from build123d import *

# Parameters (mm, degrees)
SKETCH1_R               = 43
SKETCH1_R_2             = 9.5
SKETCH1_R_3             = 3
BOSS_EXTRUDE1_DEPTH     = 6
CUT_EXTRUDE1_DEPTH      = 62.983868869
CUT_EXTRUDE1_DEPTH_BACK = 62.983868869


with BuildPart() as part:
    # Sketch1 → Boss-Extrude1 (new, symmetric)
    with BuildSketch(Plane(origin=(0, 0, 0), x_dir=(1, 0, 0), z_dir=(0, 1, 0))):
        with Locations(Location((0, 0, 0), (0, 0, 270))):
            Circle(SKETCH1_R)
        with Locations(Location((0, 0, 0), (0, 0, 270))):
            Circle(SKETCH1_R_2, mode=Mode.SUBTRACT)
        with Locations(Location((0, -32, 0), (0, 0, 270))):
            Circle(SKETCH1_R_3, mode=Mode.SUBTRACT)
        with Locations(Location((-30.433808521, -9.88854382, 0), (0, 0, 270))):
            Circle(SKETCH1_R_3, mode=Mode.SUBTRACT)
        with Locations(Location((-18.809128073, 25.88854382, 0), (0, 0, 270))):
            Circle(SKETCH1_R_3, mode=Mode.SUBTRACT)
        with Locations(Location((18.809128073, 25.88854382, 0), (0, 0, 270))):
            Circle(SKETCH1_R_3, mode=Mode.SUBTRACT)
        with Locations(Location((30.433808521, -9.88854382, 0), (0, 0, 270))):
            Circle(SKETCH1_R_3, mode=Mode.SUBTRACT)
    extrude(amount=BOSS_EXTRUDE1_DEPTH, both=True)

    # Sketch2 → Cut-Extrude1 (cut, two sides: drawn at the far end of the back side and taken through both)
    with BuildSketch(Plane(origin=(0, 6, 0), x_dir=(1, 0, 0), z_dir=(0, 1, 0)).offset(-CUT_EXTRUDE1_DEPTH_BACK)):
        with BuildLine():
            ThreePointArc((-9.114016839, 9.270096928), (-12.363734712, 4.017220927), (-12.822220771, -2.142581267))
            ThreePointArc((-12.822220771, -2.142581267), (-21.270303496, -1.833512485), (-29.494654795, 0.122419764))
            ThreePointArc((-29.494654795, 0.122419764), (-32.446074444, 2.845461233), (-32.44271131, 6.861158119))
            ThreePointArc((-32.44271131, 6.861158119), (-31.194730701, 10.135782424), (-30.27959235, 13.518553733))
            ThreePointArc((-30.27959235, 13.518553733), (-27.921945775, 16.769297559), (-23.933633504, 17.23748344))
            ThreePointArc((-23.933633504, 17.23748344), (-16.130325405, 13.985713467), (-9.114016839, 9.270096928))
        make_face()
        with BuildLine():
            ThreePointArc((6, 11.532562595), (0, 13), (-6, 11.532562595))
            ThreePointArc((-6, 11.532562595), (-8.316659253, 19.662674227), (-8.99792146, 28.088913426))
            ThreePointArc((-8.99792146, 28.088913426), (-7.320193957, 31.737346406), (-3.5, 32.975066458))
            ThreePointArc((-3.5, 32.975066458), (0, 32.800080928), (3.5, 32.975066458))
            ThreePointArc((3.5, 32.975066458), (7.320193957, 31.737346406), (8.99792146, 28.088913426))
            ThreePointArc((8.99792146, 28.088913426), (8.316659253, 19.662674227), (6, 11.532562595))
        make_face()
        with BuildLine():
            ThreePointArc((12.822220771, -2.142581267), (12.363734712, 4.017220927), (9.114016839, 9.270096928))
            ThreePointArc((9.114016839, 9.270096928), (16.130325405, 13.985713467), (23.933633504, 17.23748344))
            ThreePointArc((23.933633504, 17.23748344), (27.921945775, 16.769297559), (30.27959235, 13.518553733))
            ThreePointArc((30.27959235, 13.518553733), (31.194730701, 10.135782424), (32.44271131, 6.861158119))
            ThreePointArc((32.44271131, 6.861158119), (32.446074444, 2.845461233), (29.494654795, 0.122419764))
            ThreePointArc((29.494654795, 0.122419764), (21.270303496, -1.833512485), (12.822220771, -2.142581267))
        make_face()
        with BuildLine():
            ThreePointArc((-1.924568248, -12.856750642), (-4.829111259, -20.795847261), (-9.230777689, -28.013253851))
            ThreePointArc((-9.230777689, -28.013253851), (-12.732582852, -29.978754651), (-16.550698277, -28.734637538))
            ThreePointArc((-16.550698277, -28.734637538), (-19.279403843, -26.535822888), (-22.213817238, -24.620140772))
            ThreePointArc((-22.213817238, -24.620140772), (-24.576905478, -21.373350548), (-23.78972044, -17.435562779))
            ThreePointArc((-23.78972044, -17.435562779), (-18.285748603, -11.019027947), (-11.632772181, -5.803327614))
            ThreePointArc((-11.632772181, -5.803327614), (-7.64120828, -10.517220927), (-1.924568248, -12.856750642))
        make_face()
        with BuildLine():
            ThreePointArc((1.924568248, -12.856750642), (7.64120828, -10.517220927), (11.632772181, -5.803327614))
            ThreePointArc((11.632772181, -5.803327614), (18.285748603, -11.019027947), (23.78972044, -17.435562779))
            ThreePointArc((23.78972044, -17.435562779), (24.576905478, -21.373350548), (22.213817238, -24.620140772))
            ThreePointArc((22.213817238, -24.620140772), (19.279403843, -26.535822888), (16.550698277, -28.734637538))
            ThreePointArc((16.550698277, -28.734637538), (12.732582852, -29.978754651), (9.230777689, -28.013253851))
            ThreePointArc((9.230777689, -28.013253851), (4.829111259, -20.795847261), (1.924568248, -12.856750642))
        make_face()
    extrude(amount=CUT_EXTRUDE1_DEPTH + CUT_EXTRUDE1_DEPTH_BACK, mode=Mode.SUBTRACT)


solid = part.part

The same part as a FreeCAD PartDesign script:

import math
import FreeCAD as App
import Part
import Sketcher

doc = App.newDocument("Part")
body = doc.addObject("PartDesign::Body", "Body")

# Sketch on XZ plane
sketch1 = body.newObject("Sketcher::SketchObject", "Sketch")
sketch1.AttachmentSupport = (doc.getObject("XZ_Plane"), [""])
sketch1.MapMode = "FlatFace"
sketch1.addGeometry([
    Part.Circle(App.Vector(0, 0, 0), App.Vector(0, 0, 1), 43),  # 0
    Part.Circle(App.Vector(-18.809128, -25.888544, 0), App.Vector(0, 0, 1), 3),  # 1
    Part.Circle(App.Vector(-30.433809, 9.888544, 0), App.Vector(0, 0, 1), 3),  # 2
    Part.Circle(App.Vector(0, 0, 0), App.Vector(0, 0, 1), 9.5),  # 3
    Part.Circle(App.Vector(18.809128, -25.888544, 0), App.Vector(0, 0, 1), 3),  # 4
    Part.Circle(App.Vector(0, 32, 0), App.Vector(0, 0, 1), 3),  # 5
    Part.Circle(App.Vector(30.433809, 9.888544, 0), App.Vector(0, 0, 1), 3),  # 6
], False)
sketch1.addConstraint([
    Sketcher.Constraint("Coincident", 0, 3, -1, 1),
    Sketcher.Constraint("Coincident", 3, 3, -1, 1),
    Sketcher.Constraint("Equal", 1, 2),
    Sketcher.Constraint("Equal", 2, 4),
    Sketcher.Constraint("Equal", 4, 5),
    Sketcher.Constraint("Equal", 5, 6),
    Sketcher.Constraint("Symmetric", 1, 3, 4, 3, -2),
    Sketcher.Constraint("Symmetric", 2, 3, 6, 3, -2),
    Sketcher.Constraint("PointOnObject", 5, 3, -2),
    Sketcher.Constraint("Diameter", 0, 86.0),
    Sketcher.Constraint("Diameter", 1, 6.0),
    Sketcher.Constraint("Diameter", 3, 19.0),
    Sketcher.Constraint("DistanceY", -1, 1, 5, 3, 32.0),
    Sketcher.Constraint("DistanceX", 1, 3, -1, 1, 18.809128),
    Sketcher.Constraint("DistanceX", 2, 3, -1, 1, 30.433809),
    Sketcher.Constraint("DistanceY", 1, 3, -1, 1, 25.888544),
    Sketcher.Constraint("DistanceY", -1, 1, 2, 3, 9.888544),
])
pad1 = body.newObject("PartDesign::Pad", "Pad")
pad1.Profile = sketch1
pad1.Length = 12
pad1.Midplane = True

# Sketch on XZ plane
sketch2 = body.newObject("Sketcher::SketchObject", "Sketch001")
sketch2.AttachmentSupport = (doc.getObject("XZ_Plane"), [""])
sketch2.MapMode = "FlatFace"
sketch2.AttachmentOffset = App.Placement(App.Vector(0, 0, -6), App.Rotation())
sketch2.addGeometry([
    Part.ArcOfCircle(Part.Circle(App.Vector(0, 0, 0), App.Vector(0, 0, 1), 13), math.radians(170.513574), math.radians(225.486426)),  # 0
    Part.ArcOfCircle(Part.Circle(App.Vector(-36.492033, 23.887772, 0), App.Vector(0, 0, 1), 43), math.radians(-73.018927), math.radians(-50.453961)),  # 1
    Part.ArcOfCircle(Part.Circle(App.Vector(-25.393912, -12.455477, 0), App.Vector(0, 0, 1), 5), math.radians(-167.724338), math.radians(-73.018927)),  # 2
    Part.ArcOfCircle(Part.Circle(App.Vector(-64.567672, -20.979308, 0), App.Vector(0, 0, 1), 35.090387), math.radians(12.275662), math.radians(23.724338)),  # 3
    Part.ArcOfCircle(Part.Circle(App.Vector(-27.865252, -4.849475, 0), App.Vector(0, 0, 1), 5), math.radians(109.018927), math.radians(203.724338)),  # 4
    Part.ArcOfCircle(Part.Circle(App.Vector(-15.481795, -40.775092, 0), App.Vector(0, 0, 1), 43), math.radians(86.453961), math.radians(109.018927)),  # 5
    Part.ArcOfCircle(Part.Circle(App.Vector(0, 0, 0), App.Vector(0, 0, 1), 13), math.radians(-117.486426), math.radians(-62.513574)),  # 6
    Part.ArcOfCircle(Part.Circle(App.Vector(-33.995279, -27.324258, 0), App.Vector(0, 0, 1), 43), math.radians(-1.018927), math.radians(21.546039)),  # 7
    Part.ArcOfCircle(Part.Circle(App.Vector(3.998712, -28, 0), App.Vector(0, 0, 1), 5), math.radians(-95.724338), math.radians(-1.018927)),  # 8
    Part.ArcOfCircle(Part.Circle(App.Vector(0, -67.890468, 0), App.Vector(0, 0, 1), 35.090387), math.radians(84.275662), math.radians(95.724338)),  # 9
    Part.ArcOfCircle(Part.Circle(App.Vector(-3.998712, -28, 0), App.Vector(0, 0, 1), 5), math.radians(-178.981073), math.radians(-84.275662)),  # 10
    Part.ArcOfCircle(Part.Circle(App.Vector(33.995279, -27.324258, 0), App.Vector(0, 0, 1), 43), math.radians(158.453961), math.radians(181.018927)),  # 11
    Part.ArcOfCircle(Part.Circle(App.Vector(0, 0, 0), App.Vector(0, 0, 1), 13), math.radians(-45.486426), math.radians(9.486426)),  # 12
    Part.ArcOfCircle(Part.Circle(App.Vector(15.481795, -40.775092, 0), App.Vector(0, 0, 1), 43), math.radians(70.981073), math.radians(93.546039)),  # 13
    Part.ArcOfCircle(Part.Circle(App.Vector(27.865252, -4.849475, 0), App.Vector(0, 0, 1), 5), math.radians(-23.724338), math.radians(70.981073)),  # 14
    Part.ArcOfCircle(Part.Circle(App.Vector(64.567672, -20.979308, 0), App.Vector(0, 0, 1), 35.090387), math.radians(156.275662), math.radians(167.724338)),  # 15
    Part.ArcOfCircle(Part.Circle(App.Vector(25.393912, -12.455477, 0), App.Vector(0, 0, 1), 5), math.radians(-106.981073), math.radians(-12.275662)),  # 16
    Part.ArcOfCircle(Part.Circle(App.Vector(36.492033, 23.887772, 0), App.Vector(0, 0, 1), 43), math.radians(-129.546039), math.radians(-106.981073)),  # 17
    Part.ArcOfCircle(Part.Circle(App.Vector(-43.563554, 2.123865, 0), App.Vector(0, 0, 1), 43), math.radians(14.453961), math.radians(37.018927)),  # 18
    Part.ArcOfCircle(Part.Circle(App.Vector(0, 0, 0), App.Vector(0, 0, 1), 13), math.radians(98.513574), math.radians(153.486426)),  # 19
    Part.ArcOfCircle(Part.Circle(App.Vector(11.441963, 42.087713, 0), App.Vector(0, 0, 1), 43), math.radians(-145.018927), math.radians(-122.453961)),  # 20
    Part.ArcOfCircle(Part.Circle(App.Vector(-19.693013, 20.302092, 0), App.Vector(0, 0, 1), 5), math.radians(120.275662), math.radians(214.981074)),  # 21
    Part.ArcOfCircle(Part.Circle(App.Vector(-39.905016, 54.924542, 0), App.Vector(0, 0, 1), 35.090387), math.radians(-59.724338), math.radians(-48.275662)),  # 22
    Part.ArcOfCircle(Part.Circle(App.Vector(-13.222961, 25.00286, 0), App.Vector(0, 0, 1), 5), math.radians(37.018927), math.radians(131.724338)),  # 23
    Part.ArcOfCircle(Part.Circle(App.Vector(0, 0, 0), App.Vector(0, 0, 1), 13), math.radians(26.513574), math.radians(81.486426)),  # 24
    Part.ArcOfCircle(Part.Circle(App.Vector(43.563554, 2.123865, 0), App.Vector(0, 0, 1), 43), math.radians(142.981073), math.radians(165.546039)),  # 25
    Part.ArcOfCircle(Part.Circle(App.Vector(13.222961, 25.00286, 0), App.Vector(0, 0, 1), 5), math.radians(48.275662), math.radians(142.981073)),  # 26
    Part.ArcOfCircle(Part.Circle(App.Vector(39.905016, 54.924542, 0), App.Vector(0, 0, 1), 35.090387), math.radians(-131.724338), math.radians(-120.275662)),  # 27
    Part.ArcOfCircle(Part.Circle(App.Vector(19.693013, 20.302092, 0), App.Vector(0, 0, 1), 5), math.radians(-34.981074), math.radians(59.724338)),  # 28
    Part.ArcOfCircle(Part.Circle(App.Vector(-11.441963, 42.087713, 0), App.Vector(0, 0, 1), 43), math.radians(-57.546039), math.radians(-34.981073)),  # 29
], False)
sketch2.addConstraint([
    Sketcher.Constraint("Coincident", 0, 2, 1, 2),
    Sketcher.Constraint("Tangent", 1, 1, 2, 2),
    Sketcher.Constraint("Tangent", 2, 1, 3, 1),
    Sketcher.Constraint("Tangent", 3, 2, 4, 2),
    Sketcher.Constraint("Tangent", 4, 1, 5, 2),
    Sketcher.Constraint("Coincident", 5, 1, 0, 1),
    Sketcher.Constraint("Coincident", 6, 2, 7, 2),
    Sketcher.Constraint("Tangent", 7, 1, 8, 2),
    Sketcher.Constraint("Tangent", 8, 1, 9, 1),
    Sketcher.Constraint("Tangent", 9, 2, 10, 2),
    Sketcher.Constraint("Tangent", 10, 1, 11, 2),
    Sketcher.Constraint("Coincident", 11, 1, 6, 1),
    Sketcher.Constraint("Coincident", 12, 2, 13, 2),
    Sketcher.Constraint("Tangent", 13, 1, 14, 2),
    Sketcher.Constraint("Tangent", 14, 1, 15, 1),
    Sketcher.Constraint("Tangent", 15, 2, 16, 2),
    Sketcher.Constraint("Tangent", 16, 1, 17, 2),
    Sketcher.Constraint("Coincident", 17, 1, 12, 1),
    Sketcher.Constraint("Coincident", 18, 1, 19, 1),
    Sketcher.Constraint("Coincident", 19, 2, 20, 2),
    Sketcher.Constraint("Tangent", 20, 1, 21, 2),
    Sketcher.Constraint("Tangent", 21, 1, 22, 1),
    Sketcher.Constraint("Tangent", 22, 2, 23, 2),
    Sketcher.Constraint("Tangent", 23, 1, 18, 2),
    Sketcher.Constraint("Coincident", 24, 2, 25, 2),
    Sketcher.Constraint("Tangent", 25, 1, 26, 2),
    Sketcher.Constraint("Tangent", 26, 1, 27, 1),
    Sketcher.Constraint("Tangent", 27, 2, 28, 2),
    Sketcher.Constraint("Tangent", 28, 1, 29, 2),
    Sketcher.Constraint("Coincident", 29, 1, 24, 1),
    Sketcher.Constraint("Coincident", 0, 3, -1, 1),
    Sketcher.Constraint("Coincident", 6, 3, -1, 1),
    Sketcher.Constraint("Coincident", 12, 3, -1, 1),
    Sketcher.Constraint("Coincident", 19, 3, -1, 1),
    Sketcher.Constraint("Coincident", 24, 3, -1, 1),
    Sketcher.Constraint("Equal", 2, 4),
    Sketcher.Constraint("Equal", 1, 5),
    Sketcher.Constraint("Equal", 0, 6),
    Sketcher.Constraint("Equal", 5, 7),
    Sketcher.Constraint("Equal", 4, 8),
    Sketcher.Constraint("Equal", 3, 9),
    Sketcher.Constraint("Equal", 8, 10),
    Sketcher.Constraint("Equal", 7, 11),
    Sketcher.Constraint("Equal", 6, 12),
    Sketcher.Constraint("Equal", 11, 13),
    Sketcher.Constraint("Equal", 10, 14),
    Sketcher.Constraint("Equal", 9, 15),
    Sketcher.Constraint("Equal", 14, 16),
    Sketcher.Constraint("Equal", 13, 17),
    Sketcher.Constraint("Equal", 17, 18),
    Sketcher.Constraint("Equal", 12, 19),
    Sketcher.Constraint("Equal", 18, 20),
    Sketcher.Constraint("Equal", 16, 21),
    Sketcher.Constraint("Equal", 15, 22),
    Sketcher.Constraint("Equal", 21, 23),
    Sketcher.Constraint("Equal", 19, 24),
    Sketcher.Constraint("Equal", 20, 25),
    Sketcher.Constraint("Equal", 23, 26),
    Sketcher.Constraint("Equal", 22, 27),
    Sketcher.Constraint("Equal", 26, 28),
    Sketcher.Constraint("Equal", 25, 29),
    Sketcher.Constraint("Symmetric", 8, 3, 10, 3, -2),
    Sketcher.Constraint("Symmetric", 5, 3, 13, 3, -2),
    Sketcher.Constraint("Symmetric", 3, 3, 15, 3, -2),
    Sketcher.Constraint("Symmetric", 1, 3, 17, 3, -2),
    Sketcher.Constraint("Symmetric", 18, 3, 25, 3, -2),
    Sketcher.Constraint("Symmetric", 22, 3, 27, 3, -2),
    Sketcher.Constraint("Symmetric", 20, 3, 29, 3, -2),
    Sketcher.Constraint("Horizontal", 7, 3, 11, 3),
    Sketcher.Constraint("Radius", 0, 13.0),
    Sketcher.Constraint("Radius", 1, 43.0),
    Sketcher.Constraint("Radius", 2, 5.0),
    Sketcher.Constraint("DistanceY", 8, 3, -1, 1, 28.0),
    Sketcher.Constraint("DistanceX", -1, 1, 6, 2, 6.0),
    Sketcher.Constraint("DistanceX", 9, 2, 8, 1, 7.0),
    Sketcher.Constraint("Radius", 3, 35.090387),
    Sketcher.Constraint("DistanceX", 20, 3, 26, 3, 1.780998),
    Sketcher.Constraint("DistanceY", 13, 1, 12, 2, 2.265001),
    Sketcher.Constraint("DistanceX", 22, 2, -1, 1, 16.550698),
    Sketcher.Constraint("DistanceX", 2, 3, 10, 3, 21.3952),
    Sketcher.Constraint("DistanceX", 3, 2, 2, 3, 7.048799),
    Sketcher.Constraint("DistanceX", 18, 3, 4, 1, 14.0689),
    Sketcher.Constraint("DistanceY", 11, 3, 14, 1, 20.4631),
    Sketcher.Constraint("DistanceY", -1, 1, 1, 3, 23.887772),
    Sketcher.Constraint("DistanceX", 3, 3, -1, 1, 64.567672),
    Sketcher.Constraint("DistanceY", -1, 1, 21, 3, 20.302092),
    Sketcher.Constraint("DistanceX", 23, 3, -1, 1, 13.222961),
    Sketcher.Constraint("DistanceY", -1, 1, 23, 3, 25.00286),
])
pocket1 = body.newObject("PartDesign::Pocket", "Pocket")
pocket1.Profile = sketch2
pocket1.Type = "ThroughAll"
pocket1.Midplane = True

doc.recompute()
